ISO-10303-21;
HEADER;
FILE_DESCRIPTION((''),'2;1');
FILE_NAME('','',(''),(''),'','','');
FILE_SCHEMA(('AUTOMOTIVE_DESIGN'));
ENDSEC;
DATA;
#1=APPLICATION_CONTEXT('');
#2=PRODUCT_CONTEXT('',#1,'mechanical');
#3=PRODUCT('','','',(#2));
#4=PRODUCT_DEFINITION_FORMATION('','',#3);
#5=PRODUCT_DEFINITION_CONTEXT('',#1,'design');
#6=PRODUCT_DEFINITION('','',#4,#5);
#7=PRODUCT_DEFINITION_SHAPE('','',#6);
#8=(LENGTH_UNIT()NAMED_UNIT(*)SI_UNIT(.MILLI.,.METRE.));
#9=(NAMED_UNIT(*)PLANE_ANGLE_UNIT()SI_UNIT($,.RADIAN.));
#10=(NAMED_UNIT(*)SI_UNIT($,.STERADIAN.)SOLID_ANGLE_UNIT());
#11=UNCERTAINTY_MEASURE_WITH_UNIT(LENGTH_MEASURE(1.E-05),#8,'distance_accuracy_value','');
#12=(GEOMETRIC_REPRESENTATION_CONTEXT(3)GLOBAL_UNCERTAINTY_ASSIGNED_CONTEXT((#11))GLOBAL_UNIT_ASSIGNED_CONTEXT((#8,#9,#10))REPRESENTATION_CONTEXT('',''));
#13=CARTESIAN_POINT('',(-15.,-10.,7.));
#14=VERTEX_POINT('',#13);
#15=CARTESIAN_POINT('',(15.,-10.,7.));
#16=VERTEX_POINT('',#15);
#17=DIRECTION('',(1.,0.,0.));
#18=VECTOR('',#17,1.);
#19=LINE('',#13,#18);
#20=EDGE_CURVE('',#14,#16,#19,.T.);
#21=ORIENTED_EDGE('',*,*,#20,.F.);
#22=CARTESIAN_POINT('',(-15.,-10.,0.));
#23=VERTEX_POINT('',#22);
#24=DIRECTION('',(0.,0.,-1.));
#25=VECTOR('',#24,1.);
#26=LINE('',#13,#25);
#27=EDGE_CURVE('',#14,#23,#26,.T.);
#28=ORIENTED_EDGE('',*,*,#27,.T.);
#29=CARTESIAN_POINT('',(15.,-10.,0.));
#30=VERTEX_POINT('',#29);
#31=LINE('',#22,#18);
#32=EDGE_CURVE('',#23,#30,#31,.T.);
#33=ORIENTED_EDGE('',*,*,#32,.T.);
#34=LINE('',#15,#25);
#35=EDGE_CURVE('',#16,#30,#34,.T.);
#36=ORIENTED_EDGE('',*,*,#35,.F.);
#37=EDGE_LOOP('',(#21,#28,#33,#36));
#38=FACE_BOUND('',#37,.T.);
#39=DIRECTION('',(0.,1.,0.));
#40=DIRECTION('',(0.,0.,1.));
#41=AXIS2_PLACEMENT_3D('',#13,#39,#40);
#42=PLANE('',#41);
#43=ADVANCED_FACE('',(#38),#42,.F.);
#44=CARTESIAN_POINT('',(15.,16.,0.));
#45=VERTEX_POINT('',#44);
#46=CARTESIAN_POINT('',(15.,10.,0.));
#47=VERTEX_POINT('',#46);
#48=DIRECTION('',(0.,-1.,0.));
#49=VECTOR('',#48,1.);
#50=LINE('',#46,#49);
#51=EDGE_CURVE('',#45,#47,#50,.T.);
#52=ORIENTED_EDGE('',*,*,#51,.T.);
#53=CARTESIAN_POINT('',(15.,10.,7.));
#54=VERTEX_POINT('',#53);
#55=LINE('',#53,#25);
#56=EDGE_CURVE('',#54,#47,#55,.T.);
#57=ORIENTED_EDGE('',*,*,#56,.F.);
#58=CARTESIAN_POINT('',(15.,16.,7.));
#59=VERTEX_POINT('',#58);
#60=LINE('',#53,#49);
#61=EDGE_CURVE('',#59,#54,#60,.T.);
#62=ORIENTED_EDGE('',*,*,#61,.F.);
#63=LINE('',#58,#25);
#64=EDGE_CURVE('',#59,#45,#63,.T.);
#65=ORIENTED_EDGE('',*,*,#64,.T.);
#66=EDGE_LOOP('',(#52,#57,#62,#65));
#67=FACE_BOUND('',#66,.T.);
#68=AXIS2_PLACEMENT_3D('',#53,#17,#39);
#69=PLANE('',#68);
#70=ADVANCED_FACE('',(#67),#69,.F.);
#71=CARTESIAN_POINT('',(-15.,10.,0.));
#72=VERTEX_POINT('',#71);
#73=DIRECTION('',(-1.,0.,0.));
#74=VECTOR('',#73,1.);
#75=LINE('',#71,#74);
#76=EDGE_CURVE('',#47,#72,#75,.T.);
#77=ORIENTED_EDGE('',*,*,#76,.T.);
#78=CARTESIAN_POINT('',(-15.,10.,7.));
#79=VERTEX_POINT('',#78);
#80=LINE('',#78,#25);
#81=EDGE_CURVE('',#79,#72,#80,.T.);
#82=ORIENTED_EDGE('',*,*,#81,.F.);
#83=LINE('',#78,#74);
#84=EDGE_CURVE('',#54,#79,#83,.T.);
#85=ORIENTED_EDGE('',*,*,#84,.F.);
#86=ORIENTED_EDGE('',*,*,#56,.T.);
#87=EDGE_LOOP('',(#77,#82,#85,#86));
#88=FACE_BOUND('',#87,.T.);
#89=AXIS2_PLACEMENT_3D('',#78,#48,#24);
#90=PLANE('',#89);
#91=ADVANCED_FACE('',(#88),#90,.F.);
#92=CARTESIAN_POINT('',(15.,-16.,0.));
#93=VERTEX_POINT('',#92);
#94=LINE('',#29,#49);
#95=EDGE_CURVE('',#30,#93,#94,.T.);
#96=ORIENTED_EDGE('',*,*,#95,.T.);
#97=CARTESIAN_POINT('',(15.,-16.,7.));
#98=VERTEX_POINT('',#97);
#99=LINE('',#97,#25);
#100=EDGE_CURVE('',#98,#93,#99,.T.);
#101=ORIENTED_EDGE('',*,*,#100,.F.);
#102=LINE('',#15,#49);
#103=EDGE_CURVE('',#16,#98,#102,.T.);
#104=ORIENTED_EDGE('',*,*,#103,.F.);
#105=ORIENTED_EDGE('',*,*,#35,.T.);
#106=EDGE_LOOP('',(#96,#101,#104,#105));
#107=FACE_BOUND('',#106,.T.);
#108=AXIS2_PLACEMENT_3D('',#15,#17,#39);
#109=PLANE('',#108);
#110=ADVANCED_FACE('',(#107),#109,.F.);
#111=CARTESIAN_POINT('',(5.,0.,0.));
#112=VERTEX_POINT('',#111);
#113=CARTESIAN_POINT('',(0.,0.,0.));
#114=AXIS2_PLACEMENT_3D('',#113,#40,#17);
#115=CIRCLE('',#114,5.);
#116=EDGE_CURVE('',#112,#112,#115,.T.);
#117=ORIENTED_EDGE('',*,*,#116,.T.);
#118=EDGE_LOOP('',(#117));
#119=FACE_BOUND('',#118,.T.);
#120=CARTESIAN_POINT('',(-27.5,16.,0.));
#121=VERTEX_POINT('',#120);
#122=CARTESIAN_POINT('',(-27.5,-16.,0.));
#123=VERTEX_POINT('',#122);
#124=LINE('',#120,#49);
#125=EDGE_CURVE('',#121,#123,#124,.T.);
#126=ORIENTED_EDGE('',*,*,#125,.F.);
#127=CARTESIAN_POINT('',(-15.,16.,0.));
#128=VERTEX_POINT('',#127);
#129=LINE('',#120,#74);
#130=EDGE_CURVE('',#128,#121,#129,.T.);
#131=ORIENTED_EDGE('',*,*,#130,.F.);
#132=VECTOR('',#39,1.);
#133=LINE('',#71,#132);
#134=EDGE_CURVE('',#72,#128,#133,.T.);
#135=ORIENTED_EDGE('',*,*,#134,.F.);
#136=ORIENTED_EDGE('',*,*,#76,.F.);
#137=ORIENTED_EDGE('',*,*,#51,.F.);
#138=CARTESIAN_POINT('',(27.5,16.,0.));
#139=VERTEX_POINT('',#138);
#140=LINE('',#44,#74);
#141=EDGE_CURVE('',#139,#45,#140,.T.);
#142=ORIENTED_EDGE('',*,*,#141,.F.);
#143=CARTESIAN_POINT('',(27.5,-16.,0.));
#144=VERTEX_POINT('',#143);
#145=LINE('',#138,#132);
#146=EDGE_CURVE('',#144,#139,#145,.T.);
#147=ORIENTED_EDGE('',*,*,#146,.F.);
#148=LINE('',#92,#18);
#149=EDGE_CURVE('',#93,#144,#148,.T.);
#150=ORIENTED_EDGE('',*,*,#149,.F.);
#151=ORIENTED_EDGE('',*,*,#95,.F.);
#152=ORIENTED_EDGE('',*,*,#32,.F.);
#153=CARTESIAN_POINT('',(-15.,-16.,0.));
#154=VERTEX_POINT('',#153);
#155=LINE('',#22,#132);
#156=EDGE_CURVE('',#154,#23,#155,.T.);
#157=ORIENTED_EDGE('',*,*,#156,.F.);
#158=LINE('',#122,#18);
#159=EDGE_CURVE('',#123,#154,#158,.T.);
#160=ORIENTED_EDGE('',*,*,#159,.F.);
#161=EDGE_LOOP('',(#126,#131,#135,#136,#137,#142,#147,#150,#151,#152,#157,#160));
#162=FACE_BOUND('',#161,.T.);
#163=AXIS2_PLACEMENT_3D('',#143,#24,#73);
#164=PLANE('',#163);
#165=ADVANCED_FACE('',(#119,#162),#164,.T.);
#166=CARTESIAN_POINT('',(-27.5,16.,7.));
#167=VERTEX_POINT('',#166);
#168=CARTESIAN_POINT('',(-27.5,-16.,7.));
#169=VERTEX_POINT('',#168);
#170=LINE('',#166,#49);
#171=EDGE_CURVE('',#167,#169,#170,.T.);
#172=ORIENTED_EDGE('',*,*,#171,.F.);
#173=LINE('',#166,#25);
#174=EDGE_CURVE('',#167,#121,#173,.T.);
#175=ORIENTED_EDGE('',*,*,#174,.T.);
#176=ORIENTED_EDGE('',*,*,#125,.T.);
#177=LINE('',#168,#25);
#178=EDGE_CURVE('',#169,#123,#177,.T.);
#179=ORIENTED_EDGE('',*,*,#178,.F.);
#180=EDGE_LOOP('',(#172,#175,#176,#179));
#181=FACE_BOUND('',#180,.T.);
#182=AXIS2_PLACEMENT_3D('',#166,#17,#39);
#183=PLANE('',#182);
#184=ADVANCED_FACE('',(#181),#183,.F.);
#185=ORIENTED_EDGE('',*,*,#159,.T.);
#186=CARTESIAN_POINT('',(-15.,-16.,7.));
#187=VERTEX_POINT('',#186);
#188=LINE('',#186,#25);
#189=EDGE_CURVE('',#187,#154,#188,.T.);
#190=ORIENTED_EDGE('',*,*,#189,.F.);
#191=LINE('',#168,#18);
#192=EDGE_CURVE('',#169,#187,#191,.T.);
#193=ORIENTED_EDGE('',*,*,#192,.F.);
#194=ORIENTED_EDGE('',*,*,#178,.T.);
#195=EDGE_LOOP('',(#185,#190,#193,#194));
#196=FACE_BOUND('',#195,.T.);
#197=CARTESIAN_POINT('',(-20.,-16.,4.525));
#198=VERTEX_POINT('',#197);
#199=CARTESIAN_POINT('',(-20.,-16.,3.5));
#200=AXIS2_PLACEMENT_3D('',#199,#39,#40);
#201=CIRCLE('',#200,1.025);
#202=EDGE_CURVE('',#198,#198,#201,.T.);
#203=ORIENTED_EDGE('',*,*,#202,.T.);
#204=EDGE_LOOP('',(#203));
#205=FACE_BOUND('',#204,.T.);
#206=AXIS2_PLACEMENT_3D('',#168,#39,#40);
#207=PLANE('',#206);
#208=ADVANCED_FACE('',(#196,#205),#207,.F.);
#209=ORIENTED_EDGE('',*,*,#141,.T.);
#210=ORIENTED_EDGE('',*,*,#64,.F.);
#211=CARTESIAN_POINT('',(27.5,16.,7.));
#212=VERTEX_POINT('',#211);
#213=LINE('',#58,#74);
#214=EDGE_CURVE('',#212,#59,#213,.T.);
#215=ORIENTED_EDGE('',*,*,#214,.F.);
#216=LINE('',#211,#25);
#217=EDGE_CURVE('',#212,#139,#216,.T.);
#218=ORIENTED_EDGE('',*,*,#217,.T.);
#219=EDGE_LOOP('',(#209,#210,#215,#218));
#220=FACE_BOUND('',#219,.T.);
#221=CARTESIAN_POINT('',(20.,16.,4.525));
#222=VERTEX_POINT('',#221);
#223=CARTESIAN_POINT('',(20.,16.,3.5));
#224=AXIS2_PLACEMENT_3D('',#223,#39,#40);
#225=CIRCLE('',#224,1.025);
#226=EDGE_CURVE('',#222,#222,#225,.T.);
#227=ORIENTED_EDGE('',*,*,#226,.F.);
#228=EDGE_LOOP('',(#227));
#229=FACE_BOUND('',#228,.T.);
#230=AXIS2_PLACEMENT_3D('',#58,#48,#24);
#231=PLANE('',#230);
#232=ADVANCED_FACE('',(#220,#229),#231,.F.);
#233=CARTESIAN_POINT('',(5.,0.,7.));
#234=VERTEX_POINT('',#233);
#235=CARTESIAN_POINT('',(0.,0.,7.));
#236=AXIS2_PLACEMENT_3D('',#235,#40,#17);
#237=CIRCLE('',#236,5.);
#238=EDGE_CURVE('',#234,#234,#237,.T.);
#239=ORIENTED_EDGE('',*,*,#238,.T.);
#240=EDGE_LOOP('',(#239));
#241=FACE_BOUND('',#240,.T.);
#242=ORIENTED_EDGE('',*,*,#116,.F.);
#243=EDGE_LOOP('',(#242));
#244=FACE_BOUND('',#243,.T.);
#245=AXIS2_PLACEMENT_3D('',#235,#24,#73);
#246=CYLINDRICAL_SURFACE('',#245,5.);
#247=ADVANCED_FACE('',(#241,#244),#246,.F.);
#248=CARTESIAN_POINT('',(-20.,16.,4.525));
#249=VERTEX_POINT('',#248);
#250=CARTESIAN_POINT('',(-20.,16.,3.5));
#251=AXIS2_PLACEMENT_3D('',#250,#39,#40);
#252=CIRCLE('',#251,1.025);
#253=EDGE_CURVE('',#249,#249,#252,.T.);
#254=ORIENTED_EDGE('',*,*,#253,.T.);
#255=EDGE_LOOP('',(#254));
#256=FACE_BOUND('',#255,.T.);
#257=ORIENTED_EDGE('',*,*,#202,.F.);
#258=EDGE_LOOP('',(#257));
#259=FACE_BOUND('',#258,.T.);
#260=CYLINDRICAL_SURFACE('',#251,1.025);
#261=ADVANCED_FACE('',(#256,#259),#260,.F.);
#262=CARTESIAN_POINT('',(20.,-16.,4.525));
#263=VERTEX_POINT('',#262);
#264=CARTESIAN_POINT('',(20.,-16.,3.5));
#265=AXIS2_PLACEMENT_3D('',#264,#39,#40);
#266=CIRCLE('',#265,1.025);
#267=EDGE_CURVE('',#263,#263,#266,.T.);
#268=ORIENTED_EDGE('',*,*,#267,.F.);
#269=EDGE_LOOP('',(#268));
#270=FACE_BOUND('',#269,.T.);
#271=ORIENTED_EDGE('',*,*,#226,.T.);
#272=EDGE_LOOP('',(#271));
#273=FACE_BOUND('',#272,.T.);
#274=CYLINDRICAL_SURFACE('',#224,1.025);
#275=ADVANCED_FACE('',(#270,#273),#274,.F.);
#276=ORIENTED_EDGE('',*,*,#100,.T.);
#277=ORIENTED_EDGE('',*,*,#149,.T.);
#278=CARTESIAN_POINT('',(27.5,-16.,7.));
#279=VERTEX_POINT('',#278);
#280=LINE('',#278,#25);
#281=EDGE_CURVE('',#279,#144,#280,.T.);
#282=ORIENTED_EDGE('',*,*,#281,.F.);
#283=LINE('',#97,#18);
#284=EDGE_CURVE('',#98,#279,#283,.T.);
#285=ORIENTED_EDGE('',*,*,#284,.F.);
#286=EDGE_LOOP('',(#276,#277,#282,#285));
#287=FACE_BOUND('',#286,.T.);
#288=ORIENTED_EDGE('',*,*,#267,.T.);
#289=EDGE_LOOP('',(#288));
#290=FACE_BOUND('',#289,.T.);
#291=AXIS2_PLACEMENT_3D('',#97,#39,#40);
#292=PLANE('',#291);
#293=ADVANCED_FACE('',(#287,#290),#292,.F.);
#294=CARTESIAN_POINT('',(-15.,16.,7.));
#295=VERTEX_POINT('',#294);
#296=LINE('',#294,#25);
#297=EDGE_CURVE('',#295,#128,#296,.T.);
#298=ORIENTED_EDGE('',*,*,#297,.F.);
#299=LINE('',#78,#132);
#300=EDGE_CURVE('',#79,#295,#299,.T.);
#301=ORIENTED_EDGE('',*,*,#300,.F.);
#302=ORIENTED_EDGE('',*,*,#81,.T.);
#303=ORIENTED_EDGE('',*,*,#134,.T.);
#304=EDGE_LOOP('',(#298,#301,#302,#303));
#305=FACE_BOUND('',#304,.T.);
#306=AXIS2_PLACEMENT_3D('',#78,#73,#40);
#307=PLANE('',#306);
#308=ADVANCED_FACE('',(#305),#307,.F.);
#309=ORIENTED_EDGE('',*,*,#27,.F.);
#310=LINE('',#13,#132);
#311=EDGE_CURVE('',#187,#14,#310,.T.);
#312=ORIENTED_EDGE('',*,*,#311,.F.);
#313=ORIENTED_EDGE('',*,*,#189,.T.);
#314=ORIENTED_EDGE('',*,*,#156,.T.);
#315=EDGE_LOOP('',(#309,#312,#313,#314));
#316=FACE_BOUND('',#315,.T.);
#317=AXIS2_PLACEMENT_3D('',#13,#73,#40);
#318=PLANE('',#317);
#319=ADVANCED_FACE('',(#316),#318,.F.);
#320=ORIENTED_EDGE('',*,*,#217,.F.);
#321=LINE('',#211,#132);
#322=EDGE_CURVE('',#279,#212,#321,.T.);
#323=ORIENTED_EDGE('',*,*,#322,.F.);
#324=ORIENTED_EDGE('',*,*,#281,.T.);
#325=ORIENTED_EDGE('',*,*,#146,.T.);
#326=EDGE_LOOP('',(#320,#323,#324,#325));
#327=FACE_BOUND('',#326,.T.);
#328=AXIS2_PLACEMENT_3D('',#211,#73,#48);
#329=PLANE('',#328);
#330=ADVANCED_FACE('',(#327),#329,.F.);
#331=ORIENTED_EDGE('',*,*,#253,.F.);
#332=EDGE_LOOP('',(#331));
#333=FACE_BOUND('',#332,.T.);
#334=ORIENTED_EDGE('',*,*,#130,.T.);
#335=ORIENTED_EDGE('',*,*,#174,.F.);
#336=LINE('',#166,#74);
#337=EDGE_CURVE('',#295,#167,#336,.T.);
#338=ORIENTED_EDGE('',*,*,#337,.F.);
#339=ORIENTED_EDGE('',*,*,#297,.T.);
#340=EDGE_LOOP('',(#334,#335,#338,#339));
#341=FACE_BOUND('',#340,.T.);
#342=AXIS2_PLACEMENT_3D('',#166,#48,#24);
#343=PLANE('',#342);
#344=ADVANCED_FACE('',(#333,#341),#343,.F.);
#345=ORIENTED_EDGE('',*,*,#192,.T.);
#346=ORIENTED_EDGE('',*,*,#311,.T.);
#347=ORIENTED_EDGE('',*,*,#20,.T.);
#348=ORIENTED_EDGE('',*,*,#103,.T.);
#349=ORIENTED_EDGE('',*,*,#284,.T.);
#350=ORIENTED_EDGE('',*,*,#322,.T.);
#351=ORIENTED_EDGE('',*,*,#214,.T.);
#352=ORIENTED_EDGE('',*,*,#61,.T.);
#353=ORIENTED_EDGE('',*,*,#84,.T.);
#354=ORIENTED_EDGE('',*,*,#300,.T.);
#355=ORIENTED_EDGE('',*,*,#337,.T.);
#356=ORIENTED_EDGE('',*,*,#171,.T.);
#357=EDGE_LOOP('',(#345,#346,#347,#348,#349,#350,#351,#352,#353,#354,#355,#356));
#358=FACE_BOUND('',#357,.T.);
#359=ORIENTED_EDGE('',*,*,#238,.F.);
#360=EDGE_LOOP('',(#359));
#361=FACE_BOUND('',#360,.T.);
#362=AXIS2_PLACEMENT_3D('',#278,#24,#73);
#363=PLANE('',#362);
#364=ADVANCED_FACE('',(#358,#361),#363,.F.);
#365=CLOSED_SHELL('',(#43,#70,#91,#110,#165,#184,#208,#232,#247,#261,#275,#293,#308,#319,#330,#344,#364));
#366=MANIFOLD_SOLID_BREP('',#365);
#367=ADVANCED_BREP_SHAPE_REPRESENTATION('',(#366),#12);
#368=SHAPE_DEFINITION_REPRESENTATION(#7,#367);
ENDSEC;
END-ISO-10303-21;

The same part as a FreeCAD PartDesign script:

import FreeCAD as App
import Part
import Sketcher
from FreeCAD import Vector

doc = App.newDocument("Part")
body = doc.addObject("PartDesign::Body", "Body")

sketch1 = body.newObject("Sketcher::SketchObject", "Sketch")
sketch1.AttachmentSupport = (doc.getObject("XY_Plane"), [""])
sketch1.MapMode = "FlatFace"
sketch1.addGeometry(Part.LineSegment(Vector(-15, 10, 0), Vector(-15, 16, 0)), False)
sketch1.addGeometry(Part.LineSegment(Vector(-15, 16, 0), Vector(-27.5, 16, 0)), False)
sketch1.addGeometry(Part.LineSegment(Vector(-27.5, 16, 0), Vector(-27.5, -16, 0)), False)
sketch1.addGeometry(Part.LineSegment(Vector(-27.5, -16, 0), Vector(-15, -16, 0)), False)
sketch1.addGeometry(Part.LineSegment(Vector(-15, -16, 0), Vector(-15, -10, 0)), False)
sketch1.addGeometry(Part.LineSegment(Vector(-15, -10, 0), Vector(15, -10, 0)), False)
sketch1.addGeometry(Part.LineSegment(Vector(15, -10, 0), Vector(15, -16, 0)), False)
sketch1.addGeometry(Part.LineSegment(Vector(15, -16, 0), Vector(27.5, -16, 0)), False)
sketch1.addGeometry(Part.LineSegment(Vector(27.5, -16, 0), Vector(27.5, 16, 0)), False)
sketch1.addGeometry(Part.LineSegment(Vector(27.5, 16, 0), Vector(15, 16, 0)), False)
sketch1.addGeometry(Part.LineSegment(Vector(15, 16, 0), Vector(15, 10, 0)), False)
sketch1.addGeometry(Part.LineSegment(Vector(15, 10, 0), Vector(-15, 10, 0)), False)
sketch1.addGeometry(Part.Circle(Vector(0, 0, 0), Vector(0, 0, 1), 5), False)
sketch1.addConstraint(Sketcher.Constraint("Coincident", 0, 2, 1, 1))
sketch1.addConstraint(Sketcher.Constraint("Coincident", 1, 2, 2, 1))
sketch1.addConstraint(Sketcher.Constraint("Coincident", 2, 2, 3, 1))
sketch1.addConstraint(Sketcher.Constraint("Coincident", 3, 2, 4, 1))
sketch1.addConstraint(Sketcher.Constraint("Coincident", 4, 2, 5, 1))
sketch1.addConstraint(Sketcher.Constraint("Coincident", 5, 2, 6, 1))
sketch1.addConstraint(Sketcher.Constraint("Coincident", 6, 2, 7, 1))
sketch1.addConstraint(Sketcher.Constraint("Coincident", 7, 2, 8, 1))
sketch1.addConstraint(Sketcher.Constraint("Coincident", 8, 2, 9, 1))
sketch1.addConstraint(Sketcher.Constraint("Coincident", 9, 2, 10, 1))
sketch1.addConstraint(Sketcher.Constraint("Coincident", 10, 2, 11, 1))
sketch1.addConstraint(Sketcher.Constraint("Coincident", 11, 2, 0, 1))
sketch1.addConstraint(Sketcher.Constraint("Vertical", 0))
sketch1.addConstraint(Sketcher.Constraint("Horizontal", 1))
sketch1.addConstraint(Sketcher.Constraint("Vertical", 2))
sketch1.addConstraint(Sketcher.Constraint("Horizontal", 3))
sketch1.addConstraint(Sketcher.Constraint("Vertical", 4))
sketch1.addConstraint(Sketcher.Constraint("Horizontal", 5))
sketch1.addConstraint(Sketcher.Constraint("Vertical", 6))
sketch1.addConstraint(Sketcher.Constraint("Horizontal", 7))
sketch1.addConstraint(Sketcher.Constraint("Vertical", 8))
sketch1.addConstraint(Sketcher.Constraint("Horizontal", 9))
sketch1.addConstraint(Sketcher.Constraint("Vertical", 10))
sketch1.addConstraint(Sketcher.Constraint("Horizontal", 11))
sketch1.addConstraint(Sketcher.Constraint("Coincident", 12, 3, -1, 1))
sketch1.addConstraint(Sketcher.Constraint("Symmetric", 0, 2, 6, 2, -1, 1))
sketch1.addConstraint(Sketcher.Constraint("Symmetric", 2, 2, 8, 2, -1, 1))
sketch1.addConstraint(Sketcher.Constraint("Symmetric", 4, 2, 10, 2, -1, 1))
sketch1.addConstraint(Sketcher.Constraint("Symmetric", 3, 2, 6, 2, -2))
sketch1.addConstraint(Sketcher.Constraint("Diameter", 12, 10.0))
sketch1.addConstraint(Sketcher.Constraint("DistanceX", 5, 1, 5, 2, 30.0))
sketch1.addConstraint(Sketcher.Constraint("DistanceY", 0, 1, 0, 2, 6.0))
sketch1.addConstraint(Sketcher.Constraint("DistanceY", 2, 2, 2, 1, 32.0))
sketch1.addConstraint(Sketcher.Constraint("DistanceX", 1, 2, 1, 1, 12.5))
pad1 = body.newObject("PartDesign::Pad", "Pad")
pad1.Profile = sketch1
pad1.Length = 7

sketch2 = body.newObject("Sketcher::SketchObject", "Sketch001")
sketch2.AttachmentSupport = (doc.getObject("XZ_Plane"), [""])
sketch2.MapMode = "FlatFace"
sketch2.AttachmentOffset = App.Placement(Vector(0, 0, -16), App.Rotation())
sketch2.addGeometry(Part.Circle(Vector(-20, 3.5, 0), Vector(0, 0, 1), 1.025), False)
sketch2.addGeometry(Part.Circle(Vector(20, 3.5, 0), Vector(0, 0, 1), 1.025), False)
sketch2.addConstraint(Sketcher.Constraint("Equal", 0, 1))
sketch2.addConstraint(Sketcher.Constraint("Symmetric", 0, 3, 1, 3, -2))
sketch2.addConstraint(Sketcher.Constraint("Diameter", 0, 2.05))
sketch2.addConstraint(Sketcher.Constraint("DistanceX", 0, 3, -1, 1, 20.0))
sketch2.addConstraint(Sketcher.Constraint("DistanceY", -1, 1, 0, 3, 3.5))
doc.recompute()
hole = body.newObject("PartDesign::Hole", "Hole")
hole.Profile = sketch2
hole.ThreadType = "None"
hole.Diameter = 2.05
hole.DepthType = "ThroughAll"
hole.Reversed = True

doc.recompute()
